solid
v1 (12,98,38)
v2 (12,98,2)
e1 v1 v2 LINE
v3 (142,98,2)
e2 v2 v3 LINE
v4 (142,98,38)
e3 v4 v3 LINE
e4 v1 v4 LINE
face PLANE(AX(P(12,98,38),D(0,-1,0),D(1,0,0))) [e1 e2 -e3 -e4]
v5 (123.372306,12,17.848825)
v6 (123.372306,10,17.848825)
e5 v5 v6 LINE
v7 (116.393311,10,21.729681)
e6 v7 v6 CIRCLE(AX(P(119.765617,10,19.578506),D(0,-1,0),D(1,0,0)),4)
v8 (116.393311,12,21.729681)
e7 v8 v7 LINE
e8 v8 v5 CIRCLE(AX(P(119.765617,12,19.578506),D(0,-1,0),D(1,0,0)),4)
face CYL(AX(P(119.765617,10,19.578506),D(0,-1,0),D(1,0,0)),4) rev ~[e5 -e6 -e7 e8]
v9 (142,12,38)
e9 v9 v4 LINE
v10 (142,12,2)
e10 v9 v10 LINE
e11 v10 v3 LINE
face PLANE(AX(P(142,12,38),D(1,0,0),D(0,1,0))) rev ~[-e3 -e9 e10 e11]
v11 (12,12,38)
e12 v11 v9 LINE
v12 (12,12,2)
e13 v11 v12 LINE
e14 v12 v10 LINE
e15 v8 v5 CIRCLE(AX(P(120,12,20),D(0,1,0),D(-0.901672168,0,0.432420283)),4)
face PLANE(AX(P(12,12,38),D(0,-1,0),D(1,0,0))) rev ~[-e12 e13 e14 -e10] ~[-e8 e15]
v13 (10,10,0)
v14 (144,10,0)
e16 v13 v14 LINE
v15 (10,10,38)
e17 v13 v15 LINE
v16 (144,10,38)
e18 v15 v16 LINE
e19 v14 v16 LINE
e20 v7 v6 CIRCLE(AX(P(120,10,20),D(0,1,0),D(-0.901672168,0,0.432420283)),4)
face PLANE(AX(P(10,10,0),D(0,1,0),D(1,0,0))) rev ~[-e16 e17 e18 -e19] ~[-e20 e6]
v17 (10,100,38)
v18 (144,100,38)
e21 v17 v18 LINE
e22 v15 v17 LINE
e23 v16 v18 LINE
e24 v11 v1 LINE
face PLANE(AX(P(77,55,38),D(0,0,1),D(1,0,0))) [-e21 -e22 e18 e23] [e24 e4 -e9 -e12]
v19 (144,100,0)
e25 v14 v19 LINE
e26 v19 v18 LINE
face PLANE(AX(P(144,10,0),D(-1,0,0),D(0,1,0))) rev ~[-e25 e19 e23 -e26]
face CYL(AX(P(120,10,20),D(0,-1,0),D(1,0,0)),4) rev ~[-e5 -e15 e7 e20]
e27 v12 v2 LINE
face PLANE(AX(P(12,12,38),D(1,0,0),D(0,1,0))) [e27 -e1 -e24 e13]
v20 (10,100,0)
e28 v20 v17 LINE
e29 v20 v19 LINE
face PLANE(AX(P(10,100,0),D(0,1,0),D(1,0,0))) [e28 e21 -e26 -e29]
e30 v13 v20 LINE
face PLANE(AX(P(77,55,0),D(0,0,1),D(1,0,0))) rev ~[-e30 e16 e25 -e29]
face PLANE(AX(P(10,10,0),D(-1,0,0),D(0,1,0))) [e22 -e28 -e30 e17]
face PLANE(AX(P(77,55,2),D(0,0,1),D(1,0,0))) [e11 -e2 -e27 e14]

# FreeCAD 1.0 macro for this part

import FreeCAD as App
import Part
import Sketcher
from FreeCAD import Vector
Q = App.Units.Quantity


def add_polygon(sketch, points):
    """Adds a closed chain of lines whose ends are joined by coincident constraints."""
    first, n = sketch.GeometryCount, len(points)
    for a, b in zip(points, points[1:] + points[:1]):
        sketch.addGeometry(Part.LineSegment(App.Vector(*a, 0), App.Vector(*b, 0)), False)
    for i in range(n):
        sketch.addConstraint(Sketcher.Constraint("Coincident", first + i, 2, first + (i + 1) % n, 1))

doc = App.newDocument("Part")
body = doc.addObject("PartDesign::Body", "Body")

# Sketch on XY plane
sketch1 = doc.addObject("Sketcher::SketchObject", "Sketch")
body.addObject(sketch1)
sketch1.AttachmentSupport = (doc.XY_Plane, [""])
sketch1.MapMode = "FlatFace"
add_polygon(sketch1, [(10, 100), (10, 10), (144, 10), (144, 100)])  # lines 0-3
sketch1.addConstraint([
    Sketcher.Constraint("Vertical", 0),
    Sketcher.Constraint("Horizontal", 1),
    Sketcher.Constraint("Vertical", 2),
    Sketcher.Constraint("Horizontal", 3),
    Sketcher.Constraint("DistanceX", 1, 1, 1, 2, Q("134 mm")),
    Sketcher.Constraint("DistanceY", 0, 2, 0, 1, Q("90 mm")),
    Sketcher.Constraint("DistanceX", -1, 1, 0, 2, Q("10 mm")),
    Sketcher.Constraint("DistanceY", -1, 1, 0, 2, Q("10 mm")),
])
pad1 = doc.addObject("PartDesign::Pad", "Pad")
body.addObject(pad1)
pad1.Profile = sketch1
pad1.Length = 38

# Sketch on XY plane
sketch2 = doc.addObject("Sketcher::SketchObject", "Sketch001")
body.addObject(sketch2)
sketch2.AttachmentSupport = (doc.XY_Plane, [""])
sketch2.MapMode = "FlatFace"
sketch2.AttachmentOffset = App.Placement(Vector(0, 0, 38), App.Rotation())
add_polygon(sketch2, [(12, 98), (12, 12), (142, 12), (142, 98)])  # lines 0-3
sketch2.addConstraint([
    Sketcher.Constraint("Vertical", 0),
    Sketcher.Constraint("Horizontal", 1),
    Sketcher.Constraint("Vertical", 2),
    Sketcher.Constraint("Horizontal", 3),
    Sketcher.Constraint("DistanceX", 1, 1, 1, 2, Q("130 mm")),
    Sketcher.Constraint("DistanceY", 0, 2, 0, 1, Q("86 mm")),
    Sketcher.Constraint("DistanceX", -1, 1, 0, 2, Q("12 mm")),
    Sketcher.Constraint("DistanceY", -1, 1, 0, 2, Q("12 mm")),
])
pocket1 = doc.addObject("PartDesign::Pocket", "Pocket")
body.addObject(pocket1)
pocket1.Profile = sketch2
pocket1.Length = 36

# Sketch on XZ plane
sketch3 = doc.addObject("Sketcher::SketchObject", "Sketch002")
body.addObject(sketch3)
sketch3.AttachmentSupport = (doc.XZ_Plane, [""])
sketch3.MapMode = "FlatFace"
sketch3.AttachmentOffset = App.Placement(Vector(0, 0, -10), App.Rotation())
sketch3.addGeometry(Part.Circle(Vector(119.765617, 19.578506, 0), Vector(0, 0, 1), 4), False)
sketch3.addConstraint([
    Sketcher.Constraint("Diameter", 0, Q("8 mm")),
    Sketcher.Constraint("DistanceX", -1, 1, 0, 3, Q("119.765617 mm")),
    Sketcher.Constraint("DistanceY", -1, 1, 0, 3, Q("19.578506 mm")),
])
pocket2 = doc.addObject("PartDesign::Pocket", "Pocket001")
body.addObject(pocket2)
pocket2.Profile = sketch3
pocket2.Length = 5

# Sketch on XZ plane
sketch4 = doc.addObject("Sketcher::SketchObject", "Sketch003")
body.addObject(sketch4)
sketch4.AttachmentSupport = (doc.XZ_Plane, [""])
sketch4.MapMode = "FlatFace"
sketch4.AttachmentOffset = App.Placement(Vector(0, 0, -10), App.Rotation())
sketch4.addGeometry(Part.Circle(Vector(120, 20, 0), Vector(0, 0, 1), 4), False)
sketch4.addConstraint([
    Sketcher.Constraint("Diameter", 0, Q("8 mm")),
    Sketcher.Constraint("DistanceX", -1, 1, 0, 3, Q("120 mm")),
    Sketcher.Constraint("DistanceY", -1, 1, 0, 3, Q("20 mm")),
])
pocket3 = doc.addObject("PartDesign::Pocket", "Pocket002")
body.addObject(pocket3)
pocket3.Profile = sketch4
pocket3.Length = 5

doc.recompute()
